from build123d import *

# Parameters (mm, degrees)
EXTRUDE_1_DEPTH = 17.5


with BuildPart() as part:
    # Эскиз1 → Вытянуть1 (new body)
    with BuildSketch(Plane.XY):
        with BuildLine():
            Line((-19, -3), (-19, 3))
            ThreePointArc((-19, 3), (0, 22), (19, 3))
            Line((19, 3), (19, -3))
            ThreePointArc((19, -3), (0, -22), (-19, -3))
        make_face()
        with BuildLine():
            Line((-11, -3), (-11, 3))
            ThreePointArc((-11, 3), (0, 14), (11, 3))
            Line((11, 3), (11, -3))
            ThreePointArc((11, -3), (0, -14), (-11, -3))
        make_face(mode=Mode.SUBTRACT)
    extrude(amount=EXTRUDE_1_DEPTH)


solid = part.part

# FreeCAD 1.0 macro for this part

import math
import FreeCAD as App
import Part
import Sketcher
from FreeCAD import Vector
Q = App.Units.Quantity

doc = App.newDocument("Part")
body = doc.addObject("PartDesign::Body", "Body")

# Sketch on XY plane
sketch1 = doc.addObject("Sketcher::SketchObject", "Sketch")
body.addObject(sketch1)
sketch1.AttachmentSupport = (doc.XY_Plane, [""])
sketch1.MapMode = "FlatFace"
sketch1.addGeometry(Part.LineSegment(Vector(-19, 3, 0), Vector(-19, -3, 0)), False)
sketch1.addGeometry(Part.ArcOfCircle(Part.Circle(Vector(0, -3, 0), Vector(0, 0, 1), 19), math.radians(180), math.radians(360)), False)
sketch1.addGeometry(Part.LineSegment(Vector(19, -3, 0), Vector(19, 3, 0)), False)
sketch1.addGeometry(Part.ArcOfCircle(Part.Circle(Vector(0, 3, 0), Vector(0, 0, 1), 19), math.radians(0), math.radians(180)), False)
sketch1.addGeometry(Part.LineSegment(Vector(-11, -3, 0), Vector(-11, 3, 0)), False)
sketch1.addGeometry(Part.ArcOfCircle(Part.Circle(Vector(0, 3, 0), Vector(0, 0, 1), 11), math.radians(0), math.radians(180)), False)
sketch1.addGeometry(Part.LineSegment(Vector(11, 3, 0), Vector(11, -3, 0)), False)
sketch1.addGeometry(Part.ArcOfCircle(Part.Circle(Vector(0, -3, 0), Vector(0, 0, 1), 11), math.radians(180), math.radians(360)), False)
sketch1.addConstraint(Sketcher.Constraint("Tangent", 0, 2, 1, 1))
sketch1.addConstraint(Sketcher.Constraint("Tangent", 1, 2, 2, 1))
sketch1.addConstraint(Sketcher.Constraint("Tangent", 2, 2, 3, 1))
sketch1.addConstraint(Sketcher.Constraint("Tangent", 3, 2, 0, 1))
sketch1.addConstraint(Sketcher.Constraint("Tangent", 4, 2, 5, 2))
sketch1.addConstraint(Sketcher.Constraint("Tangent", 5, 1, 6, 1))
sketch1.addConstraint(Sketcher.Constraint("Tangent", 6, 2, 7, 2))
sketch1.addConstraint(Sketcher.Constraint("Tangent", 7, 1, 4, 1))
sketch1.addConstraint(Sketcher.Constraint("Vertical", 0))
sketch1.addConstraint(Sketcher.Constraint("Vertical", 2))
sketch1.addConstraint(Sketcher.Constraint("Vertical", 4))
sketch1.addConstraint(Sketcher.Constraint("Vertical", 6))
sketch1.addConstraint(Sketcher.Constraint("Coincident", 5, 3, 3, 3))
sketch1.addConstraint(Sketcher.Constraint("Symmetric", 1, 3, 3, 3, -1, 1))
sketch1.addConstraint(Sketcher.Constraint("Horizontal", 7, 3, 0, 2))
sketch1.addConstraint(Sketcher.Constraint("Radius", 1, Q("19 mm")))
sketch1.addConstraint(Sketcher.Constraint("Radius", 5, Q("11 mm")))
sketch1.addConstraint(Sketcher.Constraint("DistanceY", 0, 2, 0, 1, Q("6 mm")))
pad1 = doc.addObject("PartDesign::Pad", "Pad")
body.addObject(pad1)
pad1.Profile = sketch1
pad1.Length = 17.5

doc.recompute()
